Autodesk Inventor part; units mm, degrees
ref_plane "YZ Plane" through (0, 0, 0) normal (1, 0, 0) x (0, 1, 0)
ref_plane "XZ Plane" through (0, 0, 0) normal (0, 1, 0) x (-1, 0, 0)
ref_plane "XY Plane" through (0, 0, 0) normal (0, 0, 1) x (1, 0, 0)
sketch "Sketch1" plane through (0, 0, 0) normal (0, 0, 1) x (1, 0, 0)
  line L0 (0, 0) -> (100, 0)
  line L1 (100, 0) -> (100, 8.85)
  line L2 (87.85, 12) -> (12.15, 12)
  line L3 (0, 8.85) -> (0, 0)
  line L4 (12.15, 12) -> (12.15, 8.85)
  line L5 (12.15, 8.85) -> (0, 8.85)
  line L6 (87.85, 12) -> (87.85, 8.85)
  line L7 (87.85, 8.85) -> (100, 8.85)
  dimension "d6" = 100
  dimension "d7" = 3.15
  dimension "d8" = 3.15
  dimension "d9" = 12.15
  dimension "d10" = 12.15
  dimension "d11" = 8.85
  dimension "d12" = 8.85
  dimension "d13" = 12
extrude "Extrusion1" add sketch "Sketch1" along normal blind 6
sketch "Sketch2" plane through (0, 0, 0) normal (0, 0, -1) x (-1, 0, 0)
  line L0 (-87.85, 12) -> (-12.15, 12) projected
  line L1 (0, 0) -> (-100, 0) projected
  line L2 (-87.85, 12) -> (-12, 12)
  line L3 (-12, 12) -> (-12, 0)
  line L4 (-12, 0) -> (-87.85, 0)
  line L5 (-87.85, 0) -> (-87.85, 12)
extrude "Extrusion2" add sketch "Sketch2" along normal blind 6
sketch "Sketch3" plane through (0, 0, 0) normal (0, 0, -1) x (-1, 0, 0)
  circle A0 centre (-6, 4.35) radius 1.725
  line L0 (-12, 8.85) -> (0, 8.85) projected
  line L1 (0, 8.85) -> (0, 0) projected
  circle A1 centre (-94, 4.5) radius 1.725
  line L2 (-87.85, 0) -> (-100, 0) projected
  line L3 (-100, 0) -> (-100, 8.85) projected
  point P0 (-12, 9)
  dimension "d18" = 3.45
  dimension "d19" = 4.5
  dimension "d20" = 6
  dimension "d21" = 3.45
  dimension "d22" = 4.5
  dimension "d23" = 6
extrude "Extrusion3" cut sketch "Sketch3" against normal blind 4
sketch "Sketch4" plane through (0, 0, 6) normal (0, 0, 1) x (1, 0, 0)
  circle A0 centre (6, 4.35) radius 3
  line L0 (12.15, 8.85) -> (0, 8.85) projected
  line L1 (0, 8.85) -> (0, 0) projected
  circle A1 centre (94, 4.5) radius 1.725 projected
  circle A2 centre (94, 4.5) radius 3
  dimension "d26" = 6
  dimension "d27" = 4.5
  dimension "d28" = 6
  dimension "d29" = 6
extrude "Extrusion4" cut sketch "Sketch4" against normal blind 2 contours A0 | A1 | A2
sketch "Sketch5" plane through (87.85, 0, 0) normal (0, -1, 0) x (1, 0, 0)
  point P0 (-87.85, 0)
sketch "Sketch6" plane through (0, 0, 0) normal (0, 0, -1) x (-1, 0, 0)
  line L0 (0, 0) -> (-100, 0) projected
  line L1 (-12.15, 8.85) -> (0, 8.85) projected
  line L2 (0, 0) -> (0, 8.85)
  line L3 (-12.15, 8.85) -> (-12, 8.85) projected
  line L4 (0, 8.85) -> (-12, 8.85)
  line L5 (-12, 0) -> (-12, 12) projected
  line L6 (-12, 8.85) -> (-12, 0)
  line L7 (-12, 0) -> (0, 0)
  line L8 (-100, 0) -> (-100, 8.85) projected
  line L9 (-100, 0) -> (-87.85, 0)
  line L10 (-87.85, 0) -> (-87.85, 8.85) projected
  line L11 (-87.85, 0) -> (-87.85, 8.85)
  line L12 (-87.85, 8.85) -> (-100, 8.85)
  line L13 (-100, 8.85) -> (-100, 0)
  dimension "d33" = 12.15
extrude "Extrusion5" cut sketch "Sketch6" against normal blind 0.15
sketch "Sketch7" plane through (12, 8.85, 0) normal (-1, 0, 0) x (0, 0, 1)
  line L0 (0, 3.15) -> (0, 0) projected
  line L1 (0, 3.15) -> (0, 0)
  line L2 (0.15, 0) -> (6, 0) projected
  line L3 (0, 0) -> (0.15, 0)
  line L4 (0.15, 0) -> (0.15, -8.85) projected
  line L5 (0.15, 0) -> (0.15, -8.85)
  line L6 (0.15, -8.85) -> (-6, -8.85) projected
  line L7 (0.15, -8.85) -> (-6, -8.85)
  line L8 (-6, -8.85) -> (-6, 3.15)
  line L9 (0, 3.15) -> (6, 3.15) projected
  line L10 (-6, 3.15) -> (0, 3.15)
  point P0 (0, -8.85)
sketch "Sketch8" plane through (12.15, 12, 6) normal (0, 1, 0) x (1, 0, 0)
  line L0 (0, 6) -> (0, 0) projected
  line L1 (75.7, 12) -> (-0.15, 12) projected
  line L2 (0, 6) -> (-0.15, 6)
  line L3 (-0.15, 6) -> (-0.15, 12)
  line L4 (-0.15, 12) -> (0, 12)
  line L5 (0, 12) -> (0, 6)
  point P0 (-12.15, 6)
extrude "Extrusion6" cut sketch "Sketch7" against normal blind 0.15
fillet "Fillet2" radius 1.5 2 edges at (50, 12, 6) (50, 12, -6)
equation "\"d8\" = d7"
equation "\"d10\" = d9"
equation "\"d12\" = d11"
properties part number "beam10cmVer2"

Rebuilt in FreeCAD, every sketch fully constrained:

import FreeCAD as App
import Part
import Sketcher
from FreeCAD import Vector


def edges_at(feature, points):
    """Names of the edges that pass closest to the given points."""
    edges = feature.Shape.Edges
    near = lambda p: min(range(len(edges)), key=lambda i: edges[i].distToShape(Part.Vertex(*p))[0])
    return sorted({f"Edge{near(p) + 1}" for p in points})


def add_polygon(sketch, points):
    """Adds a closed chain of lines whose ends are joined by coincident constraints."""
    first, n = sketch.GeometryCount, len(points)
    for a, b in zip(points, points[1:] + points[:1]):
        sketch.addGeometry(Part.LineSegment(App.Vector(*a, 0), App.Vector(*b, 0)), False)
    for i in range(n):
        sketch.addConstraint(Sketcher.Constraint("Coincident", first + i, 2, first + (i + 1) % n, 1))

doc = App.newDocument("Part")
body = doc.addObject("PartDesign::Body", "Body")

# Sketch on XY plane
sketch1 = body.newObject("Sketcher::SketchObject", "Sketch")
sketch1.AttachmentSupport = (doc.getObject("XY_Plane"), [""])
sketch1.MapMode = "FlatFace"
add_polygon(sketch1, [(0, 8.8), (0, 0), (100, 0), (100, 8.8), (87.8, 8.8), (87.8, 12), (12.2, 12), (12.2, 8.8)])  # lines 0-7
sketch1.addConstraint(Sketcher.Constraint("Vertical", 0))
sketch1.addConstraint(Sketcher.Constraint("Horizontal", 1))
sketch1.addConstraint(Sketcher.Constraint("Vertical", 2))
sketch1.addConstraint(Sketcher.Constraint("Horizontal", 3))
sketch1.addConstraint(Sketcher.Constraint("Vertical", 4))
sketch1.addConstraint(Sketcher.Constraint("Horizontal", 5))
sketch1.addConstraint(Sketcher.Constraint("Vertical", 6))
sketch1.addConstraint(Sketcher.Constraint("Horizontal", 7))
sketch1.addConstraint(Sketcher.Constraint("Coincident", 0, 2, -1, 1))
sketch1.addConstraint(Sketcher.Constraint("Horizontal", 3, 2, 6, 2))
sketch1.addConstraint(Sketcher.Constraint("Equal", 3, 7))
sketch1.addConstraint(Sketcher.Constraint("DistanceX", 1, 1, 1, 2, 100.0))
sketch1.addConstraint(Sketcher.Constraint("DistanceY", -1, 1, 4, 2, 12.0))
sketch1.addConstraint(Sketcher.Constraint("DistanceX", 3, 2, 3, 1, 12.15))
sketch1.addConstraint(Sketcher.Constraint("DistanceY", 0, 2, 0, 1, 8.85))
pad1 = body.newObject("PartDesign::Pad", "Pad")
pad1.Profile = sketch1
pad1.Length = 6

# Sketch on XY plane
sketch2 = body.newObject("Sketcher::SketchObject", "Sketch001")
sketch2.AttachmentSupport = (doc.getObject("XY_Plane"), [""])
sketch2.MapMode = "FlatFace"
add_polygon(sketch2, [(12, 12), (88, 12), (88, 0), (12, 0)])  # lines 0-3
sketch2.addConstraint(Sketcher.Constraint("Horizontal", 0))
sketch2.addConstraint(Sketcher.Constraint("Vertical", 1))
sketch2.addConstraint(Sketcher.Constraint("Horizontal", 2))
sketch2.addConstraint(Sketcher.Constraint("Vertical", 3))
sketch2.addConstraint(Sketcher.Constraint("PointOnObject", 1, 2, -1))
sketch2.addConstraint(Sketcher.Constraint("DistanceY", 1, 2, 1, 1, 12.0))
sketch2.addConstraint(Sketcher.Constraint("DistanceX", -1, 1, 2, 2, 12.0))
sketch2.addConstraint(Sketcher.Constraint("DistanceX", 0, 1, 0, 2, 75.85))
pad2 = body.newObject("PartDesign::Pad", "Pad001")
pad2.Profile = sketch2
pad2.Length = 6
pad2.Reversed = True

# Sketch on XY plane
sketch3 = body.newObject("Sketcher::SketchObject", "Sketch002")
sketch3.AttachmentSupport = (doc.getObject("XY_Plane"), [""])
sketch3.MapMode = "FlatFace"
sketch3.addGeometry(Part.Circle(Vector(6, 4.3, 0), Vector(0, 0, 1), 1.7), False)
sketch3.addGeometry(Part.Circle(Vector(94, 4.5, 0), Vector(0, 0, 1), 1.7), False)
sketch3.addConstraint(Sketcher.Constraint("Equal", 0, 1))
sketch3.addConstraint(Sketcher.Constraint("Diameter", 0, 3.45))
sketch3.addConstraint(Sketcher.Constraint("DistanceX", -1, 1, 0, 3, 6.0))
sketch3.addConstraint(Sketcher.Constraint("DistanceY", -1, 1, 1, 3, 4.5))
sketch3.addConstraint(Sketcher.Constraint("DistanceX", -1, 1, 1, 3, 94.0))
sketch3.addConstraint(Sketcher.Constraint("DistanceY", -1, 1, 0, 3, 4.35))
pocket1 = body.newObject("PartDesign::Pocket", "Pocket")
pocket1.Profile = sketch3
pocket1.Length = 4
pocket1.Reversed = True

# Sketch on XY plane
sketch4 = body.newObject("Sketcher::SketchObject", "Sketch003")
sketch4.AttachmentSupport = (doc.getObject("XY_Plane"), [""])
sketch4.MapMode = "FlatFace"
sketch4.AttachmentOffset = App.Placement(Vector(0, 0, 6), App.Rotation())
sketch4.addGeometry(Part.Circle(Vector(6, 4.3, 0), Vector(0, 0, 1), 3), False)
sketch4.addGeometry(Part.Circle(Vector(94, 4.5, 0), Vector(0, 0, 1), 3), False)
sketch4.addConstraint(Sketcher.Constraint("Equal", 0, 1))
sketch4.addConstraint(Sketcher.Constraint("Diameter", 0, 6.0))
sketch4.addConstraint(Sketcher.Constraint("DistanceX", -1, 1, 0, 3, 6.0))
sketch4.addConstraint(Sketcher.Constraint("DistanceY", -1, 1, 1, 3, 4.5))
sketch4.addConstraint(Sketcher.Constraint("DistanceX", -1, 1, 1, 3, 94.0))
sketch4.addConstraint(Sketcher.Constraint("DistanceY", -1, 1, 0, 3, 4.35))
pocket2 = body.newObject("PartDesign::Pocket", "Pocket001")
pocket2.Profile = sketch4
pocket2.Length = 2

# Sketch on XY plane
sketch5 = body.newObject("Sketcher::SketchObject", "Sketch004")
sketch5.AttachmentSupport = (doc.getObject("XY_Plane"), [""])
sketch5.MapMode = "FlatFace"
add_polygon(sketch5, [(100, 0), (88, 0), (88, 9), (100, 9)])  # lines 0-3
add_polygon(sketch5, [(12, 0), (0, 0), (0, 9), (12, 9)])  # lines 4-7
sketch5.addConstraint(Sketcher.Constraint("Horizontal", 0))
sketch5.addConstraint(Sketcher.Constraint("Vertical", 1))
sketch5.addConstraint(Sketcher.Constraint("Horizontal", 2))
sketch5.addConstraint(Sketcher.Constraint("Vertical", 3))
sketch5.addConstraint(Sketcher.Constraint("Horizontal", 4))
sketch5.addConstraint(Sketcher.Constraint("Vertical", 5))
sketch5.addConstraint(Sketcher.Constraint("Horizontal", 6))
sketch5.addConstraint(Sketcher.Constraint("Vertical", 7))
sketch5.addConstraint(Sketcher.Constraint("Coincident", 4, 2, -1, 1))
sketch5.addConstraint(Sketcher.Constraint("PointOnObject", 0, 2, -1))
sketch5.addConstraint(Sketcher.Constraint("Horizontal", 2, 2, 5, 2))
sketch5.addConstraint(Sketcher.Constraint("DistanceX", 0, 2, 0, 1, 12.15))
sketch5.addConstraint(Sketcher.Constraint("DistanceX", 4, 2, 4, 1, 12.0))
sketch5.addConstraint(Sketcher.Constraint("DistanceX", -1, 1, 2, 2, 100.0))
sketch5.addConstraint(Sketcher.Constraint("DistanceY", 1, 1, 1, 2, 8.85))
pocket3 = body.newObject("PartDesign::Pocket", "Pocket002")
pocket3.Profile = sketch5
pocket3.Length = 0.15
pocket3.Reversed = True

# Sketch on YZ plane
sketch6 = body.newObject("Sketcher::SketchObject", "Sketch005")
sketch6.AttachmentSupport = (doc.getObject("YZ_Plane"), [""])
sketch6.MapMode = "FlatFace"
sketch6.AttachmentOffset = App.Placement(Vector(0, 0, 12), App.Rotation())
add_polygon(sketch6, [(8.85, 0), (12, 0), (12, -6), (0, -6), (0, 0.15), (8.85, 0.15)])  # lines 0-5
sketch6.addConstraint(Sketcher.Constraint("Horizontal", 0))
sketch6.addConstraint(Sketcher.Constraint("Vertical", 1))
sketch6.addConstraint(Sketcher.Constraint("Horizontal", 2))
sketch6.addConstraint(Sketcher.Constraint("Vertical", 3))
sketch6.addConstraint(Sketcher.Constraint("Horizontal", 4))
sketch6.addConstraint(Sketcher.Constraint("Vertical", 5))
sketch6.addConstraint(Sketcher.Constraint("PointOnObject", 0, 2, -1))
sketch6.addConstraint(Sketcher.Constraint("PointOnObject", 2, 2, -2))
sketch6.addConstraint(Sketcher.Constraint("DistanceX", 2, 2, 2, 1, 12.0))
sketch6.addConstraint(Sketcher.Constraint("DistanceY", 1, 2, 1, 1, 6.0))
sketch6.addConstraint(Sketcher.Constraint("DistanceX", 0, 1, 0, 2, 3.15))
sketch6.addConstraint(Sketcher.Constraint("DistanceY", 3, 1, 3, 2, 6.15))
pocket4 = body.newObject("PartDesign::Pocket", "Pocket003")
pocket4.Profile = sketch6
pocket4.Length = 0.15
pocket4.Reversed = True
doc.recompute()

fillet = body.newObject("PartDesign::Fillet", "Fillet")
fillet.Base = (pocket4, edges_at(pocket4, [(50, 12, 6), (50, 12, -6)]))
fillet.Radius = 1.5

doc.recompute()
